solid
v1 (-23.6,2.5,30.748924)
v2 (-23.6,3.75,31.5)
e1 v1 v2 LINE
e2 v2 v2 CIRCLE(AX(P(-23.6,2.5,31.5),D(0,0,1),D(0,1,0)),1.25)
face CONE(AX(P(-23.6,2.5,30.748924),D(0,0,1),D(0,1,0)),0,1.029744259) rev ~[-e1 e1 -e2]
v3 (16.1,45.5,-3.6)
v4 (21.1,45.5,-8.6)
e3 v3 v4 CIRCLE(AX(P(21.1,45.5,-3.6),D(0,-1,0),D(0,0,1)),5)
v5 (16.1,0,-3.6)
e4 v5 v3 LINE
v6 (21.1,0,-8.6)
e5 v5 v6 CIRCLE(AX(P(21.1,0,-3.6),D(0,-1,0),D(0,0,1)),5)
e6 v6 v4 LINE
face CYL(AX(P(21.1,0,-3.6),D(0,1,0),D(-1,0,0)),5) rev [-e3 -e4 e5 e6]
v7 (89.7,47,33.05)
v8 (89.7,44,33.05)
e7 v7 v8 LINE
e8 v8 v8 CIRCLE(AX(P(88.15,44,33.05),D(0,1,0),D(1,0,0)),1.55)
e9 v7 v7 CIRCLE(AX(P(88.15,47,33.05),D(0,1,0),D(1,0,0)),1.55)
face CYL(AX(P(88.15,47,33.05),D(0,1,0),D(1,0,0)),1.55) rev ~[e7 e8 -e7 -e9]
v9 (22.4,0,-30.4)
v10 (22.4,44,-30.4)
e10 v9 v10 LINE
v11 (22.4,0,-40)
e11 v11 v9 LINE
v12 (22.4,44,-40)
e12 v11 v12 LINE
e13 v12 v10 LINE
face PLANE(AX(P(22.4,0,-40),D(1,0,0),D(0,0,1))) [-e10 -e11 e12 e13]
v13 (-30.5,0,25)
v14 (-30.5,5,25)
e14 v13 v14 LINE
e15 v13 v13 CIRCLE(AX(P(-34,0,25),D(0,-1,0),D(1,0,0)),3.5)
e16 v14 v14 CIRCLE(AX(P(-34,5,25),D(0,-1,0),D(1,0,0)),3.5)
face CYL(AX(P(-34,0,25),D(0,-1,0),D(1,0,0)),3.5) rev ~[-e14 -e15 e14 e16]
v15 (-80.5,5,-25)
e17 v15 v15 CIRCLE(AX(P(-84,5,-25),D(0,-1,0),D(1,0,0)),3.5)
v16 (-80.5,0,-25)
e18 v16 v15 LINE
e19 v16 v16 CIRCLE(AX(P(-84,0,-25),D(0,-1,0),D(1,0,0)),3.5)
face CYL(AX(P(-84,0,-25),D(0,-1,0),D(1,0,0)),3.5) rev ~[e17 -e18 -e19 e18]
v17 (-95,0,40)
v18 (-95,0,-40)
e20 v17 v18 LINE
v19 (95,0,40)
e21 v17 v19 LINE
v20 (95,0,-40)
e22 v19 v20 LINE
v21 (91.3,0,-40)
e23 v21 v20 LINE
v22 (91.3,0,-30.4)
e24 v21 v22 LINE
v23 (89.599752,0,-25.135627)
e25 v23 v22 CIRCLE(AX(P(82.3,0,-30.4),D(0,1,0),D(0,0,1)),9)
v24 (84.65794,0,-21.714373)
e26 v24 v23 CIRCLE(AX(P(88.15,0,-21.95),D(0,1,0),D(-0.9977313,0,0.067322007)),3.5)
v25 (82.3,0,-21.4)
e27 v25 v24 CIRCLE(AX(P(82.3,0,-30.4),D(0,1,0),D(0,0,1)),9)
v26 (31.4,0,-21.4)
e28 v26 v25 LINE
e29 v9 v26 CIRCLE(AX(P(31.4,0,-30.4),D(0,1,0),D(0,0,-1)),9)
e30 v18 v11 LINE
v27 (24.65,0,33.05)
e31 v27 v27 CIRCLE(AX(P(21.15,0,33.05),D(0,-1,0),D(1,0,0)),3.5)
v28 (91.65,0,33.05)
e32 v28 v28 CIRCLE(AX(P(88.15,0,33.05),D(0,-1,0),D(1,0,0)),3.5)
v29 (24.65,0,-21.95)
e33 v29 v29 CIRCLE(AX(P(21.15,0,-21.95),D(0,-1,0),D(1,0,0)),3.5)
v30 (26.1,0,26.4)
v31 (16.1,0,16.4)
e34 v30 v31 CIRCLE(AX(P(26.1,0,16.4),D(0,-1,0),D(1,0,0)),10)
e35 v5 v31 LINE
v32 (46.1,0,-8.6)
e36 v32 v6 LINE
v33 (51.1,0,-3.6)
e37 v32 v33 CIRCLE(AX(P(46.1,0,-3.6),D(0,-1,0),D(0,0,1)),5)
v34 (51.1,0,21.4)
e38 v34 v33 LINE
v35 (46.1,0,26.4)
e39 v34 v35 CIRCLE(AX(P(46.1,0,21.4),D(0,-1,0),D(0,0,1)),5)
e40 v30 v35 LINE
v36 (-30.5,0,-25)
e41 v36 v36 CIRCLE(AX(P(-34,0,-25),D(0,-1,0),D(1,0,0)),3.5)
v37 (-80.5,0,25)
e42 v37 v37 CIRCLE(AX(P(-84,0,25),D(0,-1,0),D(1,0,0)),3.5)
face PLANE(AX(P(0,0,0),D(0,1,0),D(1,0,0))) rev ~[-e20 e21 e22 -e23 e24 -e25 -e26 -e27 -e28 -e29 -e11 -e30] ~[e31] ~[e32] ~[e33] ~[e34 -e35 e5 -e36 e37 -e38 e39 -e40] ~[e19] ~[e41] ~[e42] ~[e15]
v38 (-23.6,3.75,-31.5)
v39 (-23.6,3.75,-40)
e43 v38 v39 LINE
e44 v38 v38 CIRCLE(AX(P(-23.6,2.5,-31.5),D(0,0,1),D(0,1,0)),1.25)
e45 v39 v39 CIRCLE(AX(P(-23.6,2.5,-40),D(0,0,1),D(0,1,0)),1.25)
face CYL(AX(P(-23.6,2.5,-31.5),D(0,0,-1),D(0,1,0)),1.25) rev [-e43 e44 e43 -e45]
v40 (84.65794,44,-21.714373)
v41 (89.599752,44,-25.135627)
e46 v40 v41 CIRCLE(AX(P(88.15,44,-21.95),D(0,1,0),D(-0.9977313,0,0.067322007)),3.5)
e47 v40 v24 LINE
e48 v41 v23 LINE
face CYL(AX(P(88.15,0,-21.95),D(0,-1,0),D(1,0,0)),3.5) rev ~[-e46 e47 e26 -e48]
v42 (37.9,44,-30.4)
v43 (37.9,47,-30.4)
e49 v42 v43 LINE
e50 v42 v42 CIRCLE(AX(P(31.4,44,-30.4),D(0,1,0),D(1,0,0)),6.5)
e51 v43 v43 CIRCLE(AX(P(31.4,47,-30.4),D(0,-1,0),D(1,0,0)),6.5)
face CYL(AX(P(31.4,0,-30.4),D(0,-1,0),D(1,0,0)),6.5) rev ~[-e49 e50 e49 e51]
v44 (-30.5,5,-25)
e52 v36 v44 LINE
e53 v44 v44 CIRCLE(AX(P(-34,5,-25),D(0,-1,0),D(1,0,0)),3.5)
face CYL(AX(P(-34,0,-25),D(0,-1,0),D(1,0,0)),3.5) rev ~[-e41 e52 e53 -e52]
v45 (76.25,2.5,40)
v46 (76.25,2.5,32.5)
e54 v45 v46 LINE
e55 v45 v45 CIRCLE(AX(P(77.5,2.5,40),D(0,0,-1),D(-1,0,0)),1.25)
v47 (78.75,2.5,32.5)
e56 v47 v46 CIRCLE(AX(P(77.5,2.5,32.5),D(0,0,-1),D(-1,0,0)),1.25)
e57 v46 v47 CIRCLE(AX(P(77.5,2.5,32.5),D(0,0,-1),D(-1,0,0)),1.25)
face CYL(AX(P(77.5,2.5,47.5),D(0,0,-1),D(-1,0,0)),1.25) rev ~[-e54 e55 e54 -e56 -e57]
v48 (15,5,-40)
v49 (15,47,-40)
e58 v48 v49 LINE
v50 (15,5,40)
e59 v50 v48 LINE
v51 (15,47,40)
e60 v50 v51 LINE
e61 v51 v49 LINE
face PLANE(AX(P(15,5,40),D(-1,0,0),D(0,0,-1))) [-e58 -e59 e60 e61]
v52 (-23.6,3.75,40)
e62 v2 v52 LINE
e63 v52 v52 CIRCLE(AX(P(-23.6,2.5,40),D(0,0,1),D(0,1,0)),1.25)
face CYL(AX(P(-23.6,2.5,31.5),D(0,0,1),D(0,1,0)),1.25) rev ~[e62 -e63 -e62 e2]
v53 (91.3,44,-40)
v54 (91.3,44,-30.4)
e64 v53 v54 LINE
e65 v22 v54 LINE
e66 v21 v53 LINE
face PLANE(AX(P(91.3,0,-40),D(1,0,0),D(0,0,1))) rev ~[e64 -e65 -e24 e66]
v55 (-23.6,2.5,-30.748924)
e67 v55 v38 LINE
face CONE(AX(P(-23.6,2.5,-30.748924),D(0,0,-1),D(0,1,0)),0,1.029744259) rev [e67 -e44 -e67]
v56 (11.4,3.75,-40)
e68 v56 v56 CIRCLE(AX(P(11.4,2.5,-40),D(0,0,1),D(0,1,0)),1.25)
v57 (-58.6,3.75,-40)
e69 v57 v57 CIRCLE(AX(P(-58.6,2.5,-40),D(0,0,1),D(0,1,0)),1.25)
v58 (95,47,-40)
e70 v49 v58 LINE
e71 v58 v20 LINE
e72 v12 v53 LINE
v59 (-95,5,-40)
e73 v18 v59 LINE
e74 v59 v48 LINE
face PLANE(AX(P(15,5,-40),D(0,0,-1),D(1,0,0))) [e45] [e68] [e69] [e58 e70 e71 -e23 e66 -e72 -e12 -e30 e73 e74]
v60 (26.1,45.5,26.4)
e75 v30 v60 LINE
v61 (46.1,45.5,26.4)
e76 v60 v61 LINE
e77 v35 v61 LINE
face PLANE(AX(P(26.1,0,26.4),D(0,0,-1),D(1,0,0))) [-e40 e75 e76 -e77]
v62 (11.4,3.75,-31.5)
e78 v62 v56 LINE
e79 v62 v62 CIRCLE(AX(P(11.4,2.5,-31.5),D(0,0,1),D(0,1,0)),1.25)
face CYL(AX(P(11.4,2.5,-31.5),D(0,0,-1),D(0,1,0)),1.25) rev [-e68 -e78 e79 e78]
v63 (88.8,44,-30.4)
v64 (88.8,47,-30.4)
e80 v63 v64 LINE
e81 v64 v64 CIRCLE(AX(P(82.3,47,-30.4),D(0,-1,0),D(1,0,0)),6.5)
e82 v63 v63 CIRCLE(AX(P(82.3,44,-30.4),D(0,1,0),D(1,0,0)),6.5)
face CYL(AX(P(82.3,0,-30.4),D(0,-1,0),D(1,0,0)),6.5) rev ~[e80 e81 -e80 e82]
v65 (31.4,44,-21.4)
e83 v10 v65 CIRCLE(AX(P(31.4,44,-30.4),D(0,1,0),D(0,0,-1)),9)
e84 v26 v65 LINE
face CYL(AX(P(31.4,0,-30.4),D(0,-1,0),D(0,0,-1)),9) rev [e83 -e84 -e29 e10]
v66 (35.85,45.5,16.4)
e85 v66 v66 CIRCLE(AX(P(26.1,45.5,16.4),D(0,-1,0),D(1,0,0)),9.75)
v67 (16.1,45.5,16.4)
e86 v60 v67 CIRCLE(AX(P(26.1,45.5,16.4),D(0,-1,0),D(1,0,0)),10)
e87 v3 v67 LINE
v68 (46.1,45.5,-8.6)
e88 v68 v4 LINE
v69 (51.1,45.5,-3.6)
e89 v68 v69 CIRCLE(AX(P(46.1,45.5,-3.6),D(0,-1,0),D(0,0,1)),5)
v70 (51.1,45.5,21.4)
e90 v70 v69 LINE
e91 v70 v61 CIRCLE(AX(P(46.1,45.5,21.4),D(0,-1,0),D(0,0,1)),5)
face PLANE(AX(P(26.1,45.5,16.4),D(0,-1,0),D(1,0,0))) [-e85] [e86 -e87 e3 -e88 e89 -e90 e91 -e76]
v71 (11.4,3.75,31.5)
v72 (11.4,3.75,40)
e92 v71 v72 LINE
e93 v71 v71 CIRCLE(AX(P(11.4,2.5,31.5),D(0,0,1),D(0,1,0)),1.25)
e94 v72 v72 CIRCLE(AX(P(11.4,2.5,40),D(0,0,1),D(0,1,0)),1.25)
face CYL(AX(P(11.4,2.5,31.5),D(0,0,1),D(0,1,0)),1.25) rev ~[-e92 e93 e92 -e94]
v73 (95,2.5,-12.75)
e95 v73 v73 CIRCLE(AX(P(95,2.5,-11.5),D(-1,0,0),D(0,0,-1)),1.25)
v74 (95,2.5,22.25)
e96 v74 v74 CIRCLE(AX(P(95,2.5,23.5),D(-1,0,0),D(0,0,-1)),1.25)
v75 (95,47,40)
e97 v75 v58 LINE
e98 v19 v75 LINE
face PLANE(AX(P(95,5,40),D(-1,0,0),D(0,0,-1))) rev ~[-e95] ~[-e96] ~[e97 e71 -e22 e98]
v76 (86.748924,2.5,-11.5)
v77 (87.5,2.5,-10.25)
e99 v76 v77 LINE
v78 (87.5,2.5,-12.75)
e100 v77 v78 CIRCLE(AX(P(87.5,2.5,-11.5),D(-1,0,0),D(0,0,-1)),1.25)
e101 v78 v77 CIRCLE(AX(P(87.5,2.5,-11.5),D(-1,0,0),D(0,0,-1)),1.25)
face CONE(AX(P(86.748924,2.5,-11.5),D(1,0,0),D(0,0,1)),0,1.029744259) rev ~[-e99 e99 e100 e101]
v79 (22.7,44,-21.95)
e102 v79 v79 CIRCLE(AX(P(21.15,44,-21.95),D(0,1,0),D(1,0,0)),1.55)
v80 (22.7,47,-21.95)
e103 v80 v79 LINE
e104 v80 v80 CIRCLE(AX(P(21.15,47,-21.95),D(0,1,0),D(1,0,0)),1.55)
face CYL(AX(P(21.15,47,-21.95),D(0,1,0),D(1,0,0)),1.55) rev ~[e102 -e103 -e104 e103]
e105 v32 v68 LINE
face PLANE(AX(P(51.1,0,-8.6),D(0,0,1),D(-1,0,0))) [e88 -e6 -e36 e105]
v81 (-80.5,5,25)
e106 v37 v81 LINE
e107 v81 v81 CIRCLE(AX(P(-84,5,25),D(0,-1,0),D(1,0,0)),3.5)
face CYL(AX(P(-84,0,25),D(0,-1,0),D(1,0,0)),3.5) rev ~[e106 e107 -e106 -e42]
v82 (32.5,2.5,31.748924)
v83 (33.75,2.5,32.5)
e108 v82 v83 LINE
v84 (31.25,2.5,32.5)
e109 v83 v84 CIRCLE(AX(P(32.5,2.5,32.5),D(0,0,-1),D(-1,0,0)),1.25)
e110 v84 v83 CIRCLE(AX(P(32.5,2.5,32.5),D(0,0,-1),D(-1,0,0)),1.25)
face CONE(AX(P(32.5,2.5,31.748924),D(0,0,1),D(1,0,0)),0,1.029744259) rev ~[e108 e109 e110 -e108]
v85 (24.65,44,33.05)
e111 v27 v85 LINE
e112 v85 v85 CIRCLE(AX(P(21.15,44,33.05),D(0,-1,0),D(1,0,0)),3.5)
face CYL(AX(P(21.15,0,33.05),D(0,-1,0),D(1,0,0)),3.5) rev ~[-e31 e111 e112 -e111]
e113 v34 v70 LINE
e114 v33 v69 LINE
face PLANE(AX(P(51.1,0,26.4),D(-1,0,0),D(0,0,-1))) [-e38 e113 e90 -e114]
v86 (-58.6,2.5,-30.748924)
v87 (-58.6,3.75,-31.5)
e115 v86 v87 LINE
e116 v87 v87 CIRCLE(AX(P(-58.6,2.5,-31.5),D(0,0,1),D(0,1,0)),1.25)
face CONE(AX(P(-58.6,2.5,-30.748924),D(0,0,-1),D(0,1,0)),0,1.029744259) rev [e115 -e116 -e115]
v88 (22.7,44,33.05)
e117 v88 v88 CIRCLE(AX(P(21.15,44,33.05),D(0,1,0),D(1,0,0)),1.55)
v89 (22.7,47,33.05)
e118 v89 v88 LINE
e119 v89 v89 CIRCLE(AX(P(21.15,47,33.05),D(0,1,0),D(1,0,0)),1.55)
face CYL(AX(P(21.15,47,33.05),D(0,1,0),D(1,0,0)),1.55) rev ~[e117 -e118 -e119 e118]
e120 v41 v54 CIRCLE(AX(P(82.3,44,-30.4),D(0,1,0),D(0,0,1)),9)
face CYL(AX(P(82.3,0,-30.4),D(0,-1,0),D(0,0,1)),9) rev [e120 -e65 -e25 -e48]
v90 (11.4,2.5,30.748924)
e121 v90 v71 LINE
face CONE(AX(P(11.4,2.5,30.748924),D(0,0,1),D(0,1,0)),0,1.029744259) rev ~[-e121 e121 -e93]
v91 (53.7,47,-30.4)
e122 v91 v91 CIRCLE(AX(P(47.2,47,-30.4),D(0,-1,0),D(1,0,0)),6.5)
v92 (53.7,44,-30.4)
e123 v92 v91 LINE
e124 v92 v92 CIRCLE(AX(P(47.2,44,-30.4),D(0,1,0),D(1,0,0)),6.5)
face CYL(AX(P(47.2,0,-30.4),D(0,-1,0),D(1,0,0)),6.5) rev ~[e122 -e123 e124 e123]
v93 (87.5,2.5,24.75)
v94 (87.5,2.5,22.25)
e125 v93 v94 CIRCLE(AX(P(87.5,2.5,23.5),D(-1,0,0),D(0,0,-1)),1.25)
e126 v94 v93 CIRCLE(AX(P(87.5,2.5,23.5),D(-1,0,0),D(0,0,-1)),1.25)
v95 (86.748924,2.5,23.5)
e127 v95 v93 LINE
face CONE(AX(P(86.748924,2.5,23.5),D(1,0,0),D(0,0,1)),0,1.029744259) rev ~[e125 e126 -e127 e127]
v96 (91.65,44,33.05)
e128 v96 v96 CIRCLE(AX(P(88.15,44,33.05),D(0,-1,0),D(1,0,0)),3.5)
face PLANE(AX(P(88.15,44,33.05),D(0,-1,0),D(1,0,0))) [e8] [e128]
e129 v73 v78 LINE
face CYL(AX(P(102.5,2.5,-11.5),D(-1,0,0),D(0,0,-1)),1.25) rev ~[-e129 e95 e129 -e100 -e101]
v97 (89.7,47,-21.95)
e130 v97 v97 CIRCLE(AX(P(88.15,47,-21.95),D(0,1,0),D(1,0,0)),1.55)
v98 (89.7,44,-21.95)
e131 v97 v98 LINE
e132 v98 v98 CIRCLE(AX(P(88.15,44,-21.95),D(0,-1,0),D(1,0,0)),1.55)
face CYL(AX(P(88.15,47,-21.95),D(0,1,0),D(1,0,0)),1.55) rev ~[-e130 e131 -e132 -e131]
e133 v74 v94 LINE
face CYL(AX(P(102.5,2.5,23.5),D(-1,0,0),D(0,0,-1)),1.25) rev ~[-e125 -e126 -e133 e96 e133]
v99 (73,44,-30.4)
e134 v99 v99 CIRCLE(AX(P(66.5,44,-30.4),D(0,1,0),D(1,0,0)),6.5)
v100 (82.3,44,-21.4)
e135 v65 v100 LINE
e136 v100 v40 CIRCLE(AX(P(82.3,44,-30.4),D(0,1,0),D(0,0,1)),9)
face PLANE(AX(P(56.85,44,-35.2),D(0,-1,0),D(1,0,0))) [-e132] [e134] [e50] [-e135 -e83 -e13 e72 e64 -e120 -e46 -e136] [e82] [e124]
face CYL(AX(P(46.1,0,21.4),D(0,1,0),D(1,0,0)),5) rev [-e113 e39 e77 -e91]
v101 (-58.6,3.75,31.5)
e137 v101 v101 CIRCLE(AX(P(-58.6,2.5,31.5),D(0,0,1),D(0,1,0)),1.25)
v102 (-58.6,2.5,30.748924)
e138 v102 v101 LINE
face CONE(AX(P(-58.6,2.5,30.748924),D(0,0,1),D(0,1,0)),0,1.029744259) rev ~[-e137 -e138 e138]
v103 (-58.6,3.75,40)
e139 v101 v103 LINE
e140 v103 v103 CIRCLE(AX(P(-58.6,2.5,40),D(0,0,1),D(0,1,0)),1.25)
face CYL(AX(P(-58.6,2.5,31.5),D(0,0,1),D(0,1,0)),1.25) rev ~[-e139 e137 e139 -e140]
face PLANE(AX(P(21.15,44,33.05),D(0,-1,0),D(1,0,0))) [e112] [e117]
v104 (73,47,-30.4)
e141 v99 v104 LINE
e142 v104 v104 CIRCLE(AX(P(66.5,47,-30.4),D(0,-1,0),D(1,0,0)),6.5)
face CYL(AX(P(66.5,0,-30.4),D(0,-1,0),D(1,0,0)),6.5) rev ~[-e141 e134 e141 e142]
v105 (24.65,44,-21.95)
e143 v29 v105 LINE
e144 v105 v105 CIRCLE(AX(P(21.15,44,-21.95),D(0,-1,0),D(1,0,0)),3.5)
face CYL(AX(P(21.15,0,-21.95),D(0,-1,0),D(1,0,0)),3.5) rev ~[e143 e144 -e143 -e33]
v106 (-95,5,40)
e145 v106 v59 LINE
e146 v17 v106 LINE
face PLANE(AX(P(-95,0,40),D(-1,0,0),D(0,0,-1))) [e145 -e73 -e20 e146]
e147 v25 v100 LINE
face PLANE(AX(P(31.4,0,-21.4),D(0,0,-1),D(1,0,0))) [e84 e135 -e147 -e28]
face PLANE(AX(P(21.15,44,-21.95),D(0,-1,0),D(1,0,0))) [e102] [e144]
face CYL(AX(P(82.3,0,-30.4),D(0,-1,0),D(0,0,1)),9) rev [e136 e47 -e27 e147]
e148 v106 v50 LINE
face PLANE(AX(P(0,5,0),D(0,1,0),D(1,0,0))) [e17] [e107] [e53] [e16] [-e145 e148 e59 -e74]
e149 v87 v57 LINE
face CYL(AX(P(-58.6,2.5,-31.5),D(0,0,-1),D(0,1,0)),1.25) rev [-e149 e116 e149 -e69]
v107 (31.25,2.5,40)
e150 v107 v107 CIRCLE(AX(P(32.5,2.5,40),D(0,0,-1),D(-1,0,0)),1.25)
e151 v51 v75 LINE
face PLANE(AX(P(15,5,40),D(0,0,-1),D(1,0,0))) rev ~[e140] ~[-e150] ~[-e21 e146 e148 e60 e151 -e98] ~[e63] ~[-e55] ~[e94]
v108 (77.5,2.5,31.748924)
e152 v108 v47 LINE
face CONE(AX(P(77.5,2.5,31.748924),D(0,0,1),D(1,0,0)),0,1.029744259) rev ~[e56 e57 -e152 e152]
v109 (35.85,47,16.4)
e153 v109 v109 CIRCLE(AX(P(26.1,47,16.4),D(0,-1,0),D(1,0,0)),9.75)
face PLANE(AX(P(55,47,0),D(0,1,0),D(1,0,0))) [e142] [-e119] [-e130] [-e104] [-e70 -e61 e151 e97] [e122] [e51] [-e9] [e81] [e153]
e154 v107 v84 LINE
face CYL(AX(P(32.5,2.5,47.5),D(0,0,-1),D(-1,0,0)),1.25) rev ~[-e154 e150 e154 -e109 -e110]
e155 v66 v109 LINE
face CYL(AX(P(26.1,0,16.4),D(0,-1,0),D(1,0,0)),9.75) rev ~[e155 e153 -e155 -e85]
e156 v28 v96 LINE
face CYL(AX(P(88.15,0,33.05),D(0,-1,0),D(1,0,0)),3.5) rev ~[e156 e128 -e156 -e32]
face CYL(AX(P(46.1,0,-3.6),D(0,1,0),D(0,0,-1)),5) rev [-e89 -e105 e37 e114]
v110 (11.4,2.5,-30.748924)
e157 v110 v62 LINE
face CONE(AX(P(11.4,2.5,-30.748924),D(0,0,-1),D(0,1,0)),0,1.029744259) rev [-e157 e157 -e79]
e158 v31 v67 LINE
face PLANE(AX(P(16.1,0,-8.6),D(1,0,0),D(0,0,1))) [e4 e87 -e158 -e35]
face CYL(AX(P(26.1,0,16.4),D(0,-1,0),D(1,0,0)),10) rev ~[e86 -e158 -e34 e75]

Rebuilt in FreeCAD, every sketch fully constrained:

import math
import FreeCAD as App
import Part
import Sketcher
Q = App.Units.Quantity


def edges_at(feature, points):
    """Names of the edges that pass closest to the given points."""
    edges = feature.Shape.Edges
    near = lambda p: min(range(len(edges)), key=lambda i: edges[i].distToShape(Part.Vertex(*p))[0])
    return sorted({f"Edge{near(p) + 1}" for p in points})

doc = App.newDocument("Part")
params = doc.addObject("Spreadsheet::Sheet", "Params")
for row, (alias, value) in enumerate([
    ("sketch1_width", "190 mm"),
    ("sketch1_height", "80 mm"),
    ("pad1_length", "5 mm"),
    ("sketch2_width", "80 mm"),
    ("pad2_length", "42 mm"),
    ("sketch3_diameter", "13 mm"),
    ("sketch4_radius", "9 mm"),
    ("sketch4_width", "50.9 mm"),
    ("pocket2_length", "44 mm"),
    ("sketch5_diameter", "7 mm"),
    ("sketch6_diameter", "19.5 mm"),
    ("sketch7_diameter", "3.1 mm"),
    ("sketch8_diameter", "7 mm"),
    ("pocket6_length", "44 mm"),
    ("sketch9_diameter", "20 mm"),
    ("pocket7_length", "45.5 mm"),
    ("sketch10_height", "8.5 mm"),
    ("sketch10_width", "1.25 mm"),
    ("groove_angle", "360 deg"),
    ("linearpattern_pitch", "35 mm"),
    ("linearpattern2_pitch", "70 mm"),
    ("sketch11_height", "8.5 mm"),
    ("sketch11_width", "1.25 mm"),
    ("groove2_angle", "360 deg"),
    ("sketch12_height", "8.5 mm"),
    ("sketch12_width", "1.25 mm"),
    ("groove3_angle", "360 deg"),
    ("sketch13_diameter", "2.5 mm"),
    ("hole_diameter", "2.5 mm"),
    ("hole_depth", "7.5 mm"),
    ("sketch14_diameter", "2.5 mm"),
    ("hole2_diameter", "2.5 mm"),
    ("hole2_depth", "7.5 mm"),
    ("sketch15_width", "10 mm"),
    ("sketch15_width2", "35 mm"),
    ("pocket8_length", "45.5 mm"),
    ("fillet_radius", "5 mm"),
    ("sketch16_width", "68.9 mm"),
    ("sketch16_height", "9.6 mm"),
    ("pocket9_length", "44 mm"),
], start=1):
    params.set(f"A{row}", alias)
    params.set(f"B{row}", "=" + value)
    params.setAlias(f"B{row}", alias)

body = doc.addObject("PartDesign::Body", "Body")

# Sketch on XZ plane
sketch1 = body.newObject("Sketcher::SketchObject", "Sketch")
sketch1.AttachmentSupport = (doc.getObject("XZ_Plane"), [""])
sketch1.MapMode = "FlatFace"
sketch1.addGeometry(Part.LineSegment(App.Vector(-95, -40, 0), App.Vector(-95, 40, 0)), False)
sketch1.addGeometry(Part.LineSegment(App.Vector(-95, 40, 0), App.Vector(95, 40, 0)), False)
sketch1.addGeometry(Part.LineSegment(App.Vector(95, 40, 0), App.Vector(95, -40, 0)), False)
sketch1.addGeometry(Part.LineSegment(App.Vector(95, -40, 0), App.Vector(-95, -40, 0)), False)
sketch1.addConstraint(Sketcher.Constraint("Coincident", 0, 2, 1, 1))
sketch1.addConstraint(Sketcher.Constraint("Coincident", 1, 2, 2, 1))
sketch1.addConstraint(Sketcher.Constraint("Coincident", 2, 2, 3, 1))
sketch1.addConstraint(Sketcher.Constraint("Coincident", 3, 2, 0, 1))
sketch1.addConstraint(Sketcher.Constraint("Vertical", 0))
sketch1.addConstraint(Sketcher.Constraint("Horizontal", 1))
sketch1.addConstraint(Sketcher.Constraint("Vertical", 2))
sketch1.addConstraint(Sketcher.Constraint("Horizontal", 3))
sketch1.addConstraint(Sketcher.Constraint("Symmetric", 0, 2, 2, 2, -1, 1))
sketch1.addConstraint(Sketcher.Constraint("DistanceX", 1, 1, 1, 2, 190.0))
sketch1.addConstraint(Sketcher.Constraint("DistanceY", 0, 1, 0, 2, 80.0))
sketch1.setExpression("Constraints[9]", "Params.sketch1_width")
sketch1.setExpression("Constraints[10]", "Params.sketch1_height")
pad1 = body.newObject("PartDesign::Pad", "Pad")
pad1.Profile = sketch1
pad1.setExpression("Length", "Params.pad1_length")
pad1.Reversed = True

# Sketch on XZ plane
sketch2 = body.newObject("Sketcher::SketchObject", "Sketch001")
sketch2.AttachmentSupport = (doc.getObject("XZ_Plane"), [""])
sketch2.MapMode = "FlatFace"
sketch2.AttachmentOffset = App.Placement(App.Vector(0, 0, -5), App.Rotation())
sketch2.addGeometry(Part.LineSegment(App.Vector(15, -40, 0), App.Vector(15, 40, 0)), False)
sketch2.addGeometry(Part.LineSegment(App.Vector(15, 40, 0), App.Vector(95, 40, 0)), False)
sketch2.addGeometry(Part.LineSegment(App.Vector(95, 40, 0), App.Vector(95, -40, 0)), False)
sketch2.addGeometry(Part.LineSegment(App.Vector(95, -40, 0), App.Vector(15, -40, 0)), False)
sketch2.addConstraint(Sketcher.Constraint("Coincident", 0, 2, 1, 1))
sketch2.addConstraint(Sketcher.Constraint("Coincident", 1, 2, 2, 1))
sketch2.addConstraint(Sketcher.Constraint("Coincident", 2, 2, 3, 1))
sketch2.addConstraint(Sketcher.Constraint("Coincident", 3, 2, 0, 1))
sketch2.addConstraint(Sketcher.Constraint("Vertical", 0))
sketch2.addConstraint(Sketcher.Constraint("Horizontal", 1))
sketch2.addConstraint(Sketcher.Constraint("Vertical", 2))
sketch2.addConstraint(Sketcher.Constraint("Horizontal", 3))
sketch2.addConstraint(Sketcher.Constraint("Equal", 3, 0))
sketch2.addConstraint(Sketcher.Constraint("DistanceX", 1, 1, 1, 2, 80.0))
sketch2.addConstraint(Sketcher.Constraint("DistanceX", -1, 1, 0, 2, 15.0))
sketch2.addConstraint(Sketcher.Constraint("DistanceY", -1, 1, 0, 2, 40.0))
sketch2.setExpression("Constraints[9]", "Params.sketch2_width")
pad2 = body.newObject("PartDesign::Pad", "Pad001")
pad2.Profile = sketch2
pad2.setExpression("Length", "Params.pad2_length")
pad2.Reversed = True

# Sketch on XZ plane
sketch3 = body.newObject("Sketcher::SketchObject", "Sketch002")
sketch3.AttachmentSupport = (doc.getObject("XZ_Plane"), [""])
sketch3.MapMode = "FlatFace"
sketch3.addGeometry(Part.Circle(App.Vector(31, -30, 0), App.Vector(0, 0, 1), 6), False)
sketch3.addGeometry(Part.Circle(App.Vector(47, -30, 0), App.Vector(0, 0, 1), 6), False)
sketch3.addGeometry(Part.Circle(App.Vector(66, -30, 0), App.Vector(0, 0, 1), 6), False)
sketch3.addGeometry(Part.Circle(App.Vector(82, -30, 0), App.Vector(0, 0, 1), 6), False)
sketch3.addConstraint(Sketcher.Constraint("Equal", 0, 1))
sketch3.addConstraint(Sketcher.Constraint("Equal", 1, 2))
sketch3.addConstraint(Sketcher.Constraint("Equal", 2, 3))
sketch3.addConstraint(Sketcher.Constraint("Horizontal", 0, 3, 1, 3))
sketch3.addConstraint(Sketcher.Constraint("Horizontal", 1, 3, 2, 3))
sketch3.addConstraint(Sketcher.Constraint("Horizontal", 2, 3, 3, 3))
sketch3.addConstraint(Sketcher.Constraint("Diameter", 0, 13.0))
sketch3.addConstraint(Sketcher.Constraint("DistanceX", -1, 1, 0, 3, 31.4))
sketch3.addConstraint(Sketcher.Constraint("DistanceY", 0, 3, -1, 1, 30.4))
sketch3.addConstraint(Sketcher.Constraint("DistanceX", -1, 1, 1, 3, 47.2))
sketch3.addConstraint(Sketcher.Constraint("DistanceX", -1, 1, 2, 3, 66.5))
sketch3.addConstraint(Sketcher.Constraint("DistanceX", -1, 1, 3, 3, 82.3))
sketch3.setExpression("Constraints[6]", "Params.sketch3_diameter")
pocket1 = body.newObject("PartDesign::Pocket", "Pocket")
pocket1.Profile = sketch3
pocket1.Type = "ThroughAll"

# Sketch on XZ plane
sketch4 = body.newObject("Sketcher::SketchObject", "Sketch003")
sketch4.AttachmentSupport = (doc.getObject("XZ_Plane"), [""])
sketch4.MapMode = "FlatFace"
sketch4.addGeometry(Part.LineSegment(App.Vector(82, -21, 0), App.Vector(31, -21, 0)), False)
sketch4.addGeometry(Part.ArcOfCircle(Part.Circle(App.Vector(31, -30, 0), App.Vector(0, 0, 1), 9), math.radians(90), math.radians(270)), False)
sketch4.addGeometry(Part.LineSegment(App.Vector(31, -39, 0), App.Vector(82, -39, 0)), False)
sketch4.addGeometry(Part.ArcOfCircle(Part.Circle(App.Vector(82, -30, 0), App.Vector(0, 0, 1), 9), math.radians(-90), math.radians(90)), False)
sketch4.addConstraint(Sketcher.Constraint("Tangent", 0, 2, 1, 1))
sketch4.addConstraint(Sketcher.Constraint("Tangent", 1, 2, 2, 1))
sketch4.addConstraint(Sketcher.Constraint("Tangent", 2, 2, 3, 1))
sketch4.addConstraint(Sketcher.Constraint("Tangent", 3, 2, 0, 1))
sketch4.addConstraint(Sketcher.Constraint("Horizontal", 0))
sketch4.addConstraint(Sketcher.Constraint("Horizontal", 2))
sketch4.addConstraint(Sketcher.Constraint("Radius", 1, 9.0))
sketch4.addConstraint(Sketcher.Constraint("DistanceX", 0, 2, 0, 1, 50.9))
sketch4.addConstraint(Sketcher.Constraint("DistanceX", -1, 1, 1, 3, 31.4))
sketch4.addConstraint(Sketcher.Constraint("DistanceY", 1, 3, -1, 1, 30.4))
sketch4.setExpression("Constraints[6]", "Params.sketch4_radius")
sketch4.setExpression("Constraints[7]", "Params.sketch4_width")
pocket2 = body.newObject("PartDesign::Pocket", "Pocket001")
pocket2.Profile = sketch4
pocket2.setExpression("Length", "Params.pocket2_length")

# Sketch on XZ plane
sketch5 = body.newObject("Sketcher::SketchObject", "Sketch004")
sketch5.AttachmentSupport = (doc.getObject("XZ_Plane"), [""])
sketch5.MapMode = "FlatFace"
sketch5.addGeometry(Part.Circle(App.Vector(-84, 25, 0), App.Vector(0, 0, 1), 3.5), False)
sketch5.addGeometry(Part.Circle(App.Vector(-34, 25, 0), App.Vector(0, 0, 1), 3.5), False)
sketch5.addGeometry(Part.Circle(App.Vector(-84, -25, 0), App.Vector(0, 0, 1), 3.5), False)
sketch5.addGeometry(Part.Circle(App.Vector(-34, -25, 0), App.Vector(0, 0, 1), 3.5), False)
sketch5.addConstraint(Sketcher.Constraint("Equal", 0, 1))
sketch5.addConstraint(Sketcher.Constraint("Equal", 1, 2))
sketch5.addConstraint(Sketcher.Constraint("Equal", 2, 3))
sketch5.addConstraint(Sketcher.Constraint("Symmetric", 0, 3, 2, 3, -1))
sketch5.addConstraint(Sketcher.Constraint("Symmetric", 1, 3, 3, 3, -1))
sketch5.addConstraint(Sketcher.Constraint("Horizontal", 0, 3, 1, 3))
sketch5.addConstraint(Sketcher.Constraint("Diameter", 0, 7.0))
sketch5.addConstraint(Sketcher.Constraint("DistanceX", 0, 3, -1, 1, 84.0))
sketch5.addConstraint(Sketcher.Constraint("DistanceY", -1, 1, 0, 3, 25.0))
sketch5.addConstraint(Sketcher.Constraint("DistanceX", 1, 3, -1, 1, 34.0))
sketch5.setExpression("Constraints[6]", "Params.sketch5_diameter")
pocket3 = body.newObject("PartDesign::Pocket", "Pocket002")
pocket3.Profile = sketch5
pocket3.Type = "ThroughAll"

# Sketch on XZ plane
sketch6 = body.newObject("Sketcher::SketchObject", "Sketch005")
sketch6.AttachmentSupport = (doc.getObject("XZ_Plane"), [""])
sketch6.MapMode = "FlatFace"
sketch6.addGeometry(Part.Circle(App.Vector(26, 16, 0), App.Vector(0, 0, 1), 10), False)
sketch6.addConstraint(Sketcher.Constraint("Diameter", 0, 19.5))
sketch6.addConstraint(Sketcher.Constraint("DistanceX", -1, 1, 0, 3, 26.1))
sketch6.addConstraint(Sketcher.Constraint("DistanceY", -1, 1, 0, 3, 16.4))
sketch6.setExpression("Constraints[0]", "Params.sketch6_diameter")
pocket4 = body.newObject("PartDesign::Pocket", "Pocket003")
pocket4.Profile = sketch6
pocket4.Type = "ThroughAll"

# Sketch on XZ plane
sketch7 = body.newObject("Sketcher::SketchObject", "Sketch006")
sketch7.AttachmentSupport = (doc.getObject("XZ_Plane"), [""])
sketch7.MapMode = "FlatFace"
sketch7.AttachmentOffset = App.Placement(App.Vector(0, 0, -47), App.Rotation())
sketch7.addGeometry(Part.Circle(App.Vector(21.1, -21.9, 0), App.Vector(0, 0, 1), 1.6), False)
sketch7.addGeometry(Part.Circle(App.Vector(88.2, -21.9, 0), App.Vector(0, 0, 1), 1.6), False)
sketch7.addGeometry(Part.Circle(App.Vector(21.1, 33, 0), App.Vector(0, 0, 1), 1.6), False)
sketch7.addGeometry(Part.Circle(App.Vector(88.2, 33, 0), App.Vector(0, 0, 1), 1.6), False)
sketch7.addConstraint(Sketcher.Constraint("Equal", 0, 1))
sketch7.addConstraint(Sketcher.Constraint("Equal", 1, 2))
sketch7.addConstraint(Sketcher.Constraint("Equal", 2, 3))
sketch7.addConstraint(Sketcher.Constraint("Horizontal", 0, 3, 1, 3))
sketch7.addConstraint(Sketcher.Constraint("Horizontal", 2, 3, 3, 3))
sketch7.addConstraint(Sketcher.Constraint("Vertical", 0, 3, 2, 3))
sketch7.addConstraint(Sketcher.Constraint("Vertical", 1, 3, 3, 3))
sketch7.addConstraint(Sketcher.Constraint("Diameter", 0, 3.1))
sketch7.addConstraint(Sketcher.Constraint("DistanceX", 0, 3, 1, 3, 67.0))
sketch7.addConstraint(Sketcher.Constraint("DistanceY", 0, 3, 2, 3, 55.0))
sketch7.addConstraint(Sketcher.Constraint("DistanceX", -1, 1, 0, 3, 21.15))
sketch7.addConstraint(Sketcher.Constraint("DistanceY", 0, 3, -1, 1, 21.95))
sketch7.setExpression("Constraints[7]", "Params.sketch7_diameter")
pocket5 = body.newObject("PartDesign::Pocket", "Pocket004")
pocket5.Profile = sketch7
pocket5.Type = "ThroughAll"
pocket5.Reversed = True

# Sketch on XZ plane
sketch8 = body.newObject("Sketcher::SketchObject", "Sketch007")
sketch8.AttachmentSupport = (doc.getObject("XZ_Plane"), [""])
sketch8.MapMode = "FlatFace"
sketch8.addGeometry(Part.Circle(App.Vector(21.1, -21.9, 0), App.Vector(0, 0, 1), 3.5), False)
sketch8.addGeometry(Part.Circle(App.Vector(88.2, -21.9, 0), App.Vector(0, 0, 1), 3.5), False)
sketch8.addGeometry(Part.Circle(App.Vector(21.1, 33, 0), App.Vector(0, 0, 1), 3.5), False)
sketch8.addGeometry(Part.Circle(App.Vector(88.2, 33, 0), App.Vector(0, 0, 1), 3.5), False)
sketch8.addConstraint(Sketcher.Constraint("Equal", 0, 1))
sketch8.addConstraint(Sketcher.Constraint("Equal", 1, 2))
sketch8.addConstraint(Sketcher.Constraint("Equal", 2, 3))
sketch8.addConstraint(Sketcher.Constraint("Horizontal", 0, 3, 1, 3))
sketch8.addConstraint(Sketcher.Constraint("Horizontal", 2, 3, 3, 3))
sketch8.addConstraint(Sketcher.Constraint("Vertical", 0, 3, 2, 3))
sketch8.addConstraint(Sketcher.Constraint("Vertical", 1, 3, 3, 3))
sketch8.addConstraint(Sketcher.Constraint("Diameter", 0, 7.0))
sketch8.addConstraint(Sketcher.Constraint("DistanceX", 0, 3, 1, 3, 67.0))
sketch8.addConstraint(Sketcher.Constraint("DistanceY", 0, 3, 2, 3, 55.0))
sketch8.addConstraint(Sketcher.Constraint("DistanceX", -1, 1, 0, 3, 21.15))
sketch8.addConstraint(Sketcher.Constraint("DistanceY", 0, 3, -1, 1, 21.95))
sketch8.setExpression("Constraints[7]", "Params.sketch8_diameter")
pocket6 = body.newObject("PartDesign::Pocket", "Pocket005")
pocket6.Profile = sketch8
pocket6.setExpression("Length", "Params.pocket6_length")

# Sketch on XZ plane
sketch9 = body.newObject("Sketcher::SketchObject", "Sketch008")
sketch9.AttachmentSupport = (doc.getObject("XZ_Plane"), [""])
sketch9.MapMode = "FlatFace"
sketch9.addGeometry(Part.Circle(App.Vector(26, 16, 0), App.Vector(0, 0, 1), 10), False)
sketch9.addConstraint(Sketcher.Constraint("Diameter", 0, 20.0))
sketch9.addConstraint(Sketcher.Constraint("DistanceX", -1, 1, 0, 3, 26.1))
sketch9.addConstraint(Sketcher.Constraint("DistanceY", -1, 1, 0, 3, 16.4))
sketch9.setExpression("Constraints[0]", "Params.sketch9_diameter")
pocket7 = body.newObject("PartDesign::Pocket", "Pocket006")
pocket7.Profile = sketch9
pocket7.setExpression("Length", "Params.pocket7_length")

# Sketch on YZ plane
sketch10 = body.newObject("Sketcher::SketchObject", "Sketch009")
sketch10.AttachmentSupport = (doc.getObject("YZ_Plane"), [""])
sketch10.MapMode = "FlatFace"
sketch10.AttachmentOffset = App.Placement(App.Vector(0, 0, 11.4), App.Rotation())
sketch10.addGeometry(Part.LineSegment(App.Vector(2.5, -30.7, 0), App.Vector(2.5, -40, 0)), False)
sketch10.addGeometry(Part.LineSegment(App.Vector(2.5, -40, 0), App.Vector(3.8, -40, 0)), False)
sketch10.addGeometry(Part.LineSegment(App.Vector(3.8, -40, 0), App.Vector(3.8, -31.5, 0)), False)
sketch10.addGeometry(Part.LineSegment(App.Vector(3.8, -31.5, 0), App.Vector(2.5, -30.7, 0)), False)
sketch10.addGeometry(Part.LineSegment(App.Vector(2.5, -40, 0), App.Vector(2.5, -30.7, 0)), True)  # axis
sketch10.addConstraint(Sketcher.Constraint("Coincident", 0, 2, 1, 1))
sketch10.addConstraint(Sketcher.Constraint("Coincident", 1, 2, 2, 1))
sketch10.addConstraint(Sketcher.Constraint("Coincident", 2, 2, 3, 1))
sketch10.addConstraint(Sketcher.Constraint("Coincident", 3, 2, 0, 1))
sketch10.addConstraint(Sketcher.Constraint("Vertical", 0))
sketch10.addConstraint(Sketcher.Constraint("Horizontal", 1))
sketch10.addConstraint(Sketcher.Constraint("Vertical", 2))
sketch10.addConstraint(Sketcher.Constraint("Vertical", 4))
sketch10.addConstraint(Sketcher.Constraint("Coincident", 4, 1, 0, 2))
sketch10.addConstraint(Sketcher.Constraint("Equal", 0, 4))
sketch10.addConstraint(Sketcher.Constraint("Angle", 3, Q("149 deg")))
sketch10.addConstraint(Sketcher.Constraint("DistanceY", 2, 1, 2, 2, 8.5))
sketch10.addConstraint(Sketcher.Constraint("DistanceY", 0, 2, -1, 1, 40.0))
sketch10.addConstraint(Sketcher.Constraint("DistanceX", 1, 1, 1, 2, 1.25))
sketch10.addConstraint(Sketcher.Constraint("DistanceX", -1, 1, 0, 2, 2.5))
sketch10.setExpression("Constraints[11]", "Params.sketch10_height")
sketch10.setExpression("Constraints[13]", "Params.sketch10_width")
groove = body.newObject("PartDesign::Groove", "Groove")
groove.Profile = sketch10
groove.ReferenceAxis = (sketch10, ["Axis0"])
groove.setExpression("Angle", "Params.groove_angle")
doc.recompute()

linearpattern = body.newObject("PartDesign::LinearPattern", "LinearPattern")
linearpattern.Originals = [groove]
linearpattern.Direction = (doc.getObject("X_Axis"), [""])
linearpattern.Mode = "offset"
linearpattern.setExpression("Offset", "Params.linearpattern_pitch")
linearpattern.Occurrences = 2
linearpattern.Reversed = True
body.Tip = linearpattern
doc.recompute()

linearpattern2 = body.newObject("PartDesign::LinearPattern", "LinearPattern001")
linearpattern2.Originals = [groove]
linearpattern2.Direction = (doc.getObject("X_Axis"), [""])
linearpattern2.Mode = "offset"
linearpattern2.setExpression("Offset", "Params.linearpattern2_pitch")
linearpattern2.Occurrences = 2
linearpattern2.Reversed = True
body.Tip = linearpattern2
doc.recompute()

mirrored = body.newObject("PartDesign::Mirrored", "Mirrored")
mirrored.Originals = [groove]
mirrored.MirrorPlane = (doc.getObject("XY_Plane"), [""])
body.Tip = mirrored

# Sketch on YZ plane
sketch11 = body.newObject("Sketcher::SketchObject", "Sketch010")
sketch11.AttachmentSupport = (doc.getObject("YZ_Plane"), [""])
sketch11.MapMode = "FlatFace"
sketch11.AttachmentOffset = App.Placement(App.Vector(0, 0, -23.6), App.Rotation())
sketch11.addGeometry(Part.LineSegment(App.Vector(2.5, 40, 0), App.Vector(2.5, 30.7, 0)), False)
sketch11.addGeometry(Part.LineSegment(App.Vector(2.5, 30.7, 0), App.Vector(3.8, 31.5, 0)), False)
sketch11.addGeometry(Part.LineSegment(App.Vector(3.8, 31.5, 0), App.Vector(3.8, 40, 0)), False)
sketch11.addGeometry(Part.LineSegment(App.Vector(3.8, 40, 0), App.Vector(2.5, 40, 0)), False)
sketch11.addGeometry(Part.LineSegment(App.Vector(2.5, 30.7, 0), App.Vector(2.5, 40, 0)), True)  # axis
sketch11.addConstraint(Sketcher.Constraint("Coincident", 0, 2, 1, 1))
sketch11.addConstraint(Sketcher.Constraint("Coincident", 1, 2, 2, 1))
sketch11.addConstraint(Sketcher.Constraint("Coincident", 2, 2, 3, 1))
sketch11.addConstraint(Sketcher.Constraint("Coincident", 3, 2, 0, 1))
sketch11.addConstraint(Sketcher.Constraint("Vertical", 0))
sketch11.addConstraint(Sketcher.Constraint("Vertical", 2))
sketch11.addConstraint(Sketcher.Constraint("Horizontal", 3))
sketch11.addConstraint(Sketcher.Constraint("Vertical", 4))
sketch11.addConstraint(Sketcher.Constraint("Coincident", 4, 1, 0, 2))
sketch11.addConstraint(Sketcher.Constraint("Horizontal", 2, 2, 4, 2))
sketch11.addConstraint(Sketcher.Constraint("Angle", 1, Q("31 deg")))
sketch11.addConstraint(Sketcher.Constraint("DistanceY", 2, 1, 2, 2, 8.5))
sketch11.addConstraint(Sketcher.Constraint("DistanceY", -1, 1, 2, 2, 40.0))
sketch11.addConstraint(Sketcher.Constraint("DistanceX", 3, 2, 3, 1, 1.25))
sketch11.addConstraint(Sketcher.Constraint("DistanceX", -1, 1, 0, 2, 2.5))
sketch11.setExpression("Constraints[11]", "Params.sketch11_height")
sketch11.setExpression("Constraints[13]", "Params.sketch11_width")
groove2 = body.newObject("PartDesign::Groove", "Groove001")
groove2.Profile = sketch11
groove2.ReferenceAxis = (sketch11, ["Axis0"])
groove2.setExpression("Angle", "Params.groove2_angle")

# Sketch on YZ plane
sketch12 = body.newObject("Sketcher::SketchObject", "Sketch011")
sketch12.AttachmentSupport = (doc.getObject("YZ_Plane"), [""])
sketch12.MapMode = "FlatFace"
sketch12.AttachmentOffset = App.Placement(App.Vector(0, 0, -58.6), App.Rotation())
sketch12.addGeometry(Part.LineSegment(App.Vector(2.5, 40, 0), App.Vector(2.5, 30.7, 0)), False)
sketch12.addGeometry(Part.LineSegment(App.Vector(2.5, 30.7, 0), App.Vector(3.8, 31.5, 0)), False)
sketch12.addGeometry(Part.LineSegment(App.Vector(3.8, 31.5, 0), App.Vector(3.8, 40, 0)), False)
sketch12.addGeometry(Part.LineSegment(App.Vector(3.8, 40, 0), App.Vector(2.5, 40, 0)), False)
sketch12.addGeometry(Part.LineSegment(App.Vector(2.5, 30.7, 0), App.Vector(2.5, 40, 0)), True)  # axis
sketch12.addConstraint(Sketcher.Constraint("Coincident", 0, 2, 1, 1))
sketch12.addConstraint(Sketcher.Constraint("Coincident", 1, 2, 2, 1))
sketch12.addConstraint(Sketcher.Constraint("Coincident", 2, 2, 3, 1))
sketch12.addConstraint(Sketcher.Constraint("Coincident", 3, 2, 0, 1))
sketch12.addConstraint(Sketcher.Constraint("Vertical", 0))
sketch12.addConstraint(Sketcher.Constraint("Vertical", 2))
sketch12.addConstraint(Sketcher.Constraint("Horizontal", 3))
sketch12.addConstraint(Sketcher.Constraint("Vertical", 4))
sketch12.addConstraint(Sketcher.Constraint("Coincident", 4, 1, 0, 2))
sketch12.addConstraint(Sketcher.Constraint("Horizontal", 2, 2, 4, 2))
sketch12.addConstraint(Sketcher.Constraint("Angle", 1, Q("31 deg")))
sketch12.addConstraint(Sketcher.Constraint("DistanceY", 2, 1, 2, 2, 8.5))
sketch12.addConstraint(Sketcher.Constraint("DistanceY", -1, 1, 2, 2, 40.0))
sketch12.addConstraint(Sketcher.Constraint("DistanceX", 3, 2, 3, 1, 1.25))
sketch12.addConstraint(Sketcher.Constraint("DistanceX", -1, 1, 0, 2, 2.5))
sketch12.setExpression("Constraints[11]", "Params.sketch12_height")
sketch12.setExpression("Constraints[13]", "Params.sketch12_width")
groove3 = body.newObject("PartDesign::Groove", "Groove002")
groove3.Profile = sketch12
groove3.ReferenceAxis = (sketch12, ["Axis0"])
groove3.setExpression("Angle", "Params.groove3_angle")

# Sketch on XY plane
sketch13 = body.newObject("Sketcher::SketchObject", "Sketch012")
sketch13.AttachmentSupport = (doc.getObject("XY_Plane"), [""])
sketch13.MapMode = "FlatFace"
sketch13.AttachmentOffset = App.Placement(App.Vector(0, 0, 40), App.Rotation())
sketch13.addGeometry(Part.Circle(App.Vector(32.5, 2.5, 0), App.Vector(0, 0, 1), 1.2), False)
sketch13.addGeometry(Part.Circle(App.Vector(77.5, 2.5, 0), App.Vector(0, 0, 1), 1.2), False)
sketch13.addConstraint(Sketcher.Constraint("Equal", 0, 1))
sketch13.addConstraint(Sketcher.Constraint("Horizontal", 0, 3, 1, 3))
sketch13.addConstraint(Sketcher.Constraint("Diameter", 0, 2.5))
sketch13.addConstraint(Sketcher.Constraint("DistanceX", 0, 3, 1, 3, 45.0))
sketch13.addConstraint(Sketcher.Constraint("DistanceX", -1, 1, 0, 3, 32.5))
sketch13.addConstraint(Sketcher.Constraint("DistanceY", -1, 1, 0, 3, 2.5))
sketch13.setExpression("Constraints[2]", "Params.sketch13_diameter")
doc.recompute()
hole = body.newObject("PartDesign::Hole", "Hole")
hole.Profile = sketch13
hole.ThreadType = "None"
hole.setExpression("Diameter", "Params.hole_diameter")
hole.DepthType = "Dimension"
hole.setExpression("Depth", "Params.hole_depth")
hole.DrillPoint = "Angled"
hole.DrillPointAngle = 118

# Sketch on YZ plane
sketch14 = body.newObject("Sketcher::SketchObject", "Sketch013")
sketch14.AttachmentSupport = (doc.getObject("YZ_Plane"), [""])
sketch14.MapMode = "FlatFace"
sketch14.AttachmentOffset = App.Placement(App.Vector(0, 0, 95), App.Rotation())
sketch14.addGeometry(Part.Circle(App.Vector(2.5, 23.5, 0), App.Vector(0, 0, 1), 1.2), False)
sketch14.addGeometry(Part.Circle(App.Vector(2.5, -11.5, 0), App.Vector(0, 0, 1), 1.2), False)
sketch14.addConstraint(Sketcher.Constraint("Equal", 0, 1))
sketch14.addConstraint(Sketcher.Constraint("Vertical", 0, 3, 1, 3))
sketch14.addConstraint(Sketcher.Constraint("Diameter", 0, 2.5))
sketch14.addConstraint(Sketcher.Constraint("DistanceY", 1, 3, 0, 3, 35.0))
sketch14.addConstraint(Sketcher.Constraint("DistanceX", -1, 1, 0, 3, 2.5))
sketch14.addConstraint(Sketcher.Constraint("DistanceY", -1, 1, 0, 3, 23.5))
sketch14.setExpression("Constraints[2]", "Params.sketch14_diameter")
doc.recompute()
hole2 = body.newObject("PartDesign::Hole", "Hole001")
hole2.Profile = sketch14
hole2.ThreadType = "None"
hole2.setExpression("Diameter", "Params.hole2_diameter")
hole2.DepthType = "Dimension"
hole2.setExpression("Depth", "Params.hole2_depth")
hole2.DrillPoint = "Angled"
hole2.DrillPointAngle = 118

# Sketch on XZ plane
sketch15 = body.newObject("Sketcher::SketchObject", "Sketch014")
sketch15.AttachmentSupport = (doc.getObject("XZ_Plane"), [""])
sketch15.MapMode = "FlatFace"
sketch15.addGeometry(Part.LineSegment(App.Vector(26, 16, 0), App.Vector(16, 16, 0)), False)
sketch15.addGeometry(Part.LineSegment(App.Vector(16, 16, 0), App.Vector(16, -9, 0)), False)
sketch15.addGeometry(Part.LineSegment(App.Vector(16, -9, 0), App.Vector(51, -9, 0)), False)
sketch15.addGeometry(Part.LineSegment(App.Vector(51, -9, 0), App.Vector(51, 26, 0)), False)
sketch15.addGeometry(Part.LineSegment(App.Vector(51, 26, 0), App.Vector(26, 26, 0)), False)
sketch15.addGeometry(Part.LineSegment(App.Vector(26, 26, 0), App.Vector(26, 16, 0)), False)
sketch15.addConstraint(Sketcher.Constraint("Coincident", 0, 2, 1, 1))
sketch15.addConstraint(Sketcher.Constraint("Coincident", 1, 2, 2, 1))
sketch15.addConstraint(Sketcher.Constraint("Coincident", 2, 2, 3, 1))
sketch15.addConstraint(Sketcher.Constraint("Coincident", 3, 2, 4, 1))
sketch15.addConstraint(Sketcher.Constraint("Coincident", 4, 2, 5, 1))
sketch15.addConstraint(Sketcher.Constraint("Coincident", 5, 2, 0, 1))
sketch15.addConstraint(Sketcher.Constraint("Horizontal", 0))
sketch15.addConstraint(Sketcher.Constraint("Vertical", 1))
sketch15.addConstraint(Sketcher.Constraint("Horizontal", 2))
sketch15.addConstraint(Sketcher.Constraint("Vertical", 3))
sketch15.addConstraint(Sketcher.Constraint("Horizontal", 4))
sketch15.addConstraint(Sketcher.Constraint("Vertical", 5))
sketch15.addConstraint(Sketcher.Constraint("Equal", 4, 1))
sketch15.addConstraint(Sketcher.Constraint("Equal", 2, 3))
sketch15.addConstraint(Sketcher.Constraint("DistanceX", 0, 2, 0, 1, 10.0))
sketch15.addConstraint(Sketcher.Constraint("DistanceX", 2, 1, 2, 2, 35.0))
sketch15.addConstraint(Sketcher.Constraint("DistanceX", -1, 1, 0, 2, 16.1))
sketch15.addConstraint(Sketcher.Constraint("DistanceY", -1, 1, 0, 2, 16.4))
sketch15.setExpression("Constraints[14]", "Params.sketch15_width")
sketch15.setExpression("Constraints[15]", "Params.sketch15_width2")
pocket8 = body.newObject("PartDesign::Pocket", "Pocket007")
pocket8.Profile = sketch15
pocket8.setExpression("Length", "Params.pocket8_length")
doc.recompute()

fillet = body.newObject("PartDesign::Fillet", "Fillet")
fillet.Base = (pocket8, edges_at(pocket8, [(16.1, 22.75, -8.6), (51.1, 22.75, 26.4), (51.1, 22.75, -8.6)]))
fillet.setExpression("Radius", "Params.fillet_radius")

# Sketch on XZ plane
sketch16 = body.newObject("Sketcher::SketchObject", "Sketch015")
sketch16.AttachmentSupport = (doc.getObject("XZ_Plane"), [""])
sketch16.MapMode = "FlatFace"
sketch16.addGeometry(Part.LineSegment(App.Vector(22, -30, 0), App.Vector(22, -40, 0)), False)
sketch16.addGeometry(Part.LineSegment(App.Vector(22, -40, 0), App.Vector(91, -40, 0)), False)
sketch16.addGeometry(Part.LineSegment(App.Vector(91, -40, 0), App.Vector(91, -30, 0)), False)
sketch16.addGeometry(Part.LineSegment(App.Vector(91, -30, 0), App.Vector(22, -30, 0)), False)
sketch16.addConstraint(Sketcher.Constraint("Coincident", 0, 2, 1, 1))
sketch16.addConstraint(Sketcher.Constraint("Coincident", 1, 2, 2, 1))
sketch16.addConstraint(Sketcher.Constraint("Coincident", 2, 2, 3, 1))
sketch16.addConstraint(Sketcher.Constraint("Coincident", 3, 2, 0, 1))
sketch16.addConstraint(Sketcher.Constraint("Vertical", 0))
sketch16.addConstraint(Sketcher.Constraint("Horizontal", 1))
sketch16.addConstraint(Sketcher.Constraint("Vertical", 2))
sketch16.addConstraint(Sketcher.Constraint("Horizontal", 3))
sketch16.addConstraint(Sketcher.Constraint("DistanceX", 1, 1, 1, 2, 68.9))
sketch16.addConstraint(Sketcher.Constraint("DistanceY", 0, 2, 0, 1, 9.6))
sketch16.addConstraint(Sketcher.Constraint("DistanceY", 0, 2, -1, 1, 40.0))
sketch16.addConstraint(Sketcher.Constraint("DistanceX", -1, 1, 0, 2, 22.4))
sketch16.setExpression("Constraints[8]", "Params.sketch16_width")
sketch16.setExpression("Constraints[9]", "Params.sketch16_height")
pocket9 = body.newObject("PartDesign::Pocket", "Pocket008")
pocket9.Profile = sketch16
pocket9.setExpression("Length", "Params.pocket9_length")

doc.recompute()
